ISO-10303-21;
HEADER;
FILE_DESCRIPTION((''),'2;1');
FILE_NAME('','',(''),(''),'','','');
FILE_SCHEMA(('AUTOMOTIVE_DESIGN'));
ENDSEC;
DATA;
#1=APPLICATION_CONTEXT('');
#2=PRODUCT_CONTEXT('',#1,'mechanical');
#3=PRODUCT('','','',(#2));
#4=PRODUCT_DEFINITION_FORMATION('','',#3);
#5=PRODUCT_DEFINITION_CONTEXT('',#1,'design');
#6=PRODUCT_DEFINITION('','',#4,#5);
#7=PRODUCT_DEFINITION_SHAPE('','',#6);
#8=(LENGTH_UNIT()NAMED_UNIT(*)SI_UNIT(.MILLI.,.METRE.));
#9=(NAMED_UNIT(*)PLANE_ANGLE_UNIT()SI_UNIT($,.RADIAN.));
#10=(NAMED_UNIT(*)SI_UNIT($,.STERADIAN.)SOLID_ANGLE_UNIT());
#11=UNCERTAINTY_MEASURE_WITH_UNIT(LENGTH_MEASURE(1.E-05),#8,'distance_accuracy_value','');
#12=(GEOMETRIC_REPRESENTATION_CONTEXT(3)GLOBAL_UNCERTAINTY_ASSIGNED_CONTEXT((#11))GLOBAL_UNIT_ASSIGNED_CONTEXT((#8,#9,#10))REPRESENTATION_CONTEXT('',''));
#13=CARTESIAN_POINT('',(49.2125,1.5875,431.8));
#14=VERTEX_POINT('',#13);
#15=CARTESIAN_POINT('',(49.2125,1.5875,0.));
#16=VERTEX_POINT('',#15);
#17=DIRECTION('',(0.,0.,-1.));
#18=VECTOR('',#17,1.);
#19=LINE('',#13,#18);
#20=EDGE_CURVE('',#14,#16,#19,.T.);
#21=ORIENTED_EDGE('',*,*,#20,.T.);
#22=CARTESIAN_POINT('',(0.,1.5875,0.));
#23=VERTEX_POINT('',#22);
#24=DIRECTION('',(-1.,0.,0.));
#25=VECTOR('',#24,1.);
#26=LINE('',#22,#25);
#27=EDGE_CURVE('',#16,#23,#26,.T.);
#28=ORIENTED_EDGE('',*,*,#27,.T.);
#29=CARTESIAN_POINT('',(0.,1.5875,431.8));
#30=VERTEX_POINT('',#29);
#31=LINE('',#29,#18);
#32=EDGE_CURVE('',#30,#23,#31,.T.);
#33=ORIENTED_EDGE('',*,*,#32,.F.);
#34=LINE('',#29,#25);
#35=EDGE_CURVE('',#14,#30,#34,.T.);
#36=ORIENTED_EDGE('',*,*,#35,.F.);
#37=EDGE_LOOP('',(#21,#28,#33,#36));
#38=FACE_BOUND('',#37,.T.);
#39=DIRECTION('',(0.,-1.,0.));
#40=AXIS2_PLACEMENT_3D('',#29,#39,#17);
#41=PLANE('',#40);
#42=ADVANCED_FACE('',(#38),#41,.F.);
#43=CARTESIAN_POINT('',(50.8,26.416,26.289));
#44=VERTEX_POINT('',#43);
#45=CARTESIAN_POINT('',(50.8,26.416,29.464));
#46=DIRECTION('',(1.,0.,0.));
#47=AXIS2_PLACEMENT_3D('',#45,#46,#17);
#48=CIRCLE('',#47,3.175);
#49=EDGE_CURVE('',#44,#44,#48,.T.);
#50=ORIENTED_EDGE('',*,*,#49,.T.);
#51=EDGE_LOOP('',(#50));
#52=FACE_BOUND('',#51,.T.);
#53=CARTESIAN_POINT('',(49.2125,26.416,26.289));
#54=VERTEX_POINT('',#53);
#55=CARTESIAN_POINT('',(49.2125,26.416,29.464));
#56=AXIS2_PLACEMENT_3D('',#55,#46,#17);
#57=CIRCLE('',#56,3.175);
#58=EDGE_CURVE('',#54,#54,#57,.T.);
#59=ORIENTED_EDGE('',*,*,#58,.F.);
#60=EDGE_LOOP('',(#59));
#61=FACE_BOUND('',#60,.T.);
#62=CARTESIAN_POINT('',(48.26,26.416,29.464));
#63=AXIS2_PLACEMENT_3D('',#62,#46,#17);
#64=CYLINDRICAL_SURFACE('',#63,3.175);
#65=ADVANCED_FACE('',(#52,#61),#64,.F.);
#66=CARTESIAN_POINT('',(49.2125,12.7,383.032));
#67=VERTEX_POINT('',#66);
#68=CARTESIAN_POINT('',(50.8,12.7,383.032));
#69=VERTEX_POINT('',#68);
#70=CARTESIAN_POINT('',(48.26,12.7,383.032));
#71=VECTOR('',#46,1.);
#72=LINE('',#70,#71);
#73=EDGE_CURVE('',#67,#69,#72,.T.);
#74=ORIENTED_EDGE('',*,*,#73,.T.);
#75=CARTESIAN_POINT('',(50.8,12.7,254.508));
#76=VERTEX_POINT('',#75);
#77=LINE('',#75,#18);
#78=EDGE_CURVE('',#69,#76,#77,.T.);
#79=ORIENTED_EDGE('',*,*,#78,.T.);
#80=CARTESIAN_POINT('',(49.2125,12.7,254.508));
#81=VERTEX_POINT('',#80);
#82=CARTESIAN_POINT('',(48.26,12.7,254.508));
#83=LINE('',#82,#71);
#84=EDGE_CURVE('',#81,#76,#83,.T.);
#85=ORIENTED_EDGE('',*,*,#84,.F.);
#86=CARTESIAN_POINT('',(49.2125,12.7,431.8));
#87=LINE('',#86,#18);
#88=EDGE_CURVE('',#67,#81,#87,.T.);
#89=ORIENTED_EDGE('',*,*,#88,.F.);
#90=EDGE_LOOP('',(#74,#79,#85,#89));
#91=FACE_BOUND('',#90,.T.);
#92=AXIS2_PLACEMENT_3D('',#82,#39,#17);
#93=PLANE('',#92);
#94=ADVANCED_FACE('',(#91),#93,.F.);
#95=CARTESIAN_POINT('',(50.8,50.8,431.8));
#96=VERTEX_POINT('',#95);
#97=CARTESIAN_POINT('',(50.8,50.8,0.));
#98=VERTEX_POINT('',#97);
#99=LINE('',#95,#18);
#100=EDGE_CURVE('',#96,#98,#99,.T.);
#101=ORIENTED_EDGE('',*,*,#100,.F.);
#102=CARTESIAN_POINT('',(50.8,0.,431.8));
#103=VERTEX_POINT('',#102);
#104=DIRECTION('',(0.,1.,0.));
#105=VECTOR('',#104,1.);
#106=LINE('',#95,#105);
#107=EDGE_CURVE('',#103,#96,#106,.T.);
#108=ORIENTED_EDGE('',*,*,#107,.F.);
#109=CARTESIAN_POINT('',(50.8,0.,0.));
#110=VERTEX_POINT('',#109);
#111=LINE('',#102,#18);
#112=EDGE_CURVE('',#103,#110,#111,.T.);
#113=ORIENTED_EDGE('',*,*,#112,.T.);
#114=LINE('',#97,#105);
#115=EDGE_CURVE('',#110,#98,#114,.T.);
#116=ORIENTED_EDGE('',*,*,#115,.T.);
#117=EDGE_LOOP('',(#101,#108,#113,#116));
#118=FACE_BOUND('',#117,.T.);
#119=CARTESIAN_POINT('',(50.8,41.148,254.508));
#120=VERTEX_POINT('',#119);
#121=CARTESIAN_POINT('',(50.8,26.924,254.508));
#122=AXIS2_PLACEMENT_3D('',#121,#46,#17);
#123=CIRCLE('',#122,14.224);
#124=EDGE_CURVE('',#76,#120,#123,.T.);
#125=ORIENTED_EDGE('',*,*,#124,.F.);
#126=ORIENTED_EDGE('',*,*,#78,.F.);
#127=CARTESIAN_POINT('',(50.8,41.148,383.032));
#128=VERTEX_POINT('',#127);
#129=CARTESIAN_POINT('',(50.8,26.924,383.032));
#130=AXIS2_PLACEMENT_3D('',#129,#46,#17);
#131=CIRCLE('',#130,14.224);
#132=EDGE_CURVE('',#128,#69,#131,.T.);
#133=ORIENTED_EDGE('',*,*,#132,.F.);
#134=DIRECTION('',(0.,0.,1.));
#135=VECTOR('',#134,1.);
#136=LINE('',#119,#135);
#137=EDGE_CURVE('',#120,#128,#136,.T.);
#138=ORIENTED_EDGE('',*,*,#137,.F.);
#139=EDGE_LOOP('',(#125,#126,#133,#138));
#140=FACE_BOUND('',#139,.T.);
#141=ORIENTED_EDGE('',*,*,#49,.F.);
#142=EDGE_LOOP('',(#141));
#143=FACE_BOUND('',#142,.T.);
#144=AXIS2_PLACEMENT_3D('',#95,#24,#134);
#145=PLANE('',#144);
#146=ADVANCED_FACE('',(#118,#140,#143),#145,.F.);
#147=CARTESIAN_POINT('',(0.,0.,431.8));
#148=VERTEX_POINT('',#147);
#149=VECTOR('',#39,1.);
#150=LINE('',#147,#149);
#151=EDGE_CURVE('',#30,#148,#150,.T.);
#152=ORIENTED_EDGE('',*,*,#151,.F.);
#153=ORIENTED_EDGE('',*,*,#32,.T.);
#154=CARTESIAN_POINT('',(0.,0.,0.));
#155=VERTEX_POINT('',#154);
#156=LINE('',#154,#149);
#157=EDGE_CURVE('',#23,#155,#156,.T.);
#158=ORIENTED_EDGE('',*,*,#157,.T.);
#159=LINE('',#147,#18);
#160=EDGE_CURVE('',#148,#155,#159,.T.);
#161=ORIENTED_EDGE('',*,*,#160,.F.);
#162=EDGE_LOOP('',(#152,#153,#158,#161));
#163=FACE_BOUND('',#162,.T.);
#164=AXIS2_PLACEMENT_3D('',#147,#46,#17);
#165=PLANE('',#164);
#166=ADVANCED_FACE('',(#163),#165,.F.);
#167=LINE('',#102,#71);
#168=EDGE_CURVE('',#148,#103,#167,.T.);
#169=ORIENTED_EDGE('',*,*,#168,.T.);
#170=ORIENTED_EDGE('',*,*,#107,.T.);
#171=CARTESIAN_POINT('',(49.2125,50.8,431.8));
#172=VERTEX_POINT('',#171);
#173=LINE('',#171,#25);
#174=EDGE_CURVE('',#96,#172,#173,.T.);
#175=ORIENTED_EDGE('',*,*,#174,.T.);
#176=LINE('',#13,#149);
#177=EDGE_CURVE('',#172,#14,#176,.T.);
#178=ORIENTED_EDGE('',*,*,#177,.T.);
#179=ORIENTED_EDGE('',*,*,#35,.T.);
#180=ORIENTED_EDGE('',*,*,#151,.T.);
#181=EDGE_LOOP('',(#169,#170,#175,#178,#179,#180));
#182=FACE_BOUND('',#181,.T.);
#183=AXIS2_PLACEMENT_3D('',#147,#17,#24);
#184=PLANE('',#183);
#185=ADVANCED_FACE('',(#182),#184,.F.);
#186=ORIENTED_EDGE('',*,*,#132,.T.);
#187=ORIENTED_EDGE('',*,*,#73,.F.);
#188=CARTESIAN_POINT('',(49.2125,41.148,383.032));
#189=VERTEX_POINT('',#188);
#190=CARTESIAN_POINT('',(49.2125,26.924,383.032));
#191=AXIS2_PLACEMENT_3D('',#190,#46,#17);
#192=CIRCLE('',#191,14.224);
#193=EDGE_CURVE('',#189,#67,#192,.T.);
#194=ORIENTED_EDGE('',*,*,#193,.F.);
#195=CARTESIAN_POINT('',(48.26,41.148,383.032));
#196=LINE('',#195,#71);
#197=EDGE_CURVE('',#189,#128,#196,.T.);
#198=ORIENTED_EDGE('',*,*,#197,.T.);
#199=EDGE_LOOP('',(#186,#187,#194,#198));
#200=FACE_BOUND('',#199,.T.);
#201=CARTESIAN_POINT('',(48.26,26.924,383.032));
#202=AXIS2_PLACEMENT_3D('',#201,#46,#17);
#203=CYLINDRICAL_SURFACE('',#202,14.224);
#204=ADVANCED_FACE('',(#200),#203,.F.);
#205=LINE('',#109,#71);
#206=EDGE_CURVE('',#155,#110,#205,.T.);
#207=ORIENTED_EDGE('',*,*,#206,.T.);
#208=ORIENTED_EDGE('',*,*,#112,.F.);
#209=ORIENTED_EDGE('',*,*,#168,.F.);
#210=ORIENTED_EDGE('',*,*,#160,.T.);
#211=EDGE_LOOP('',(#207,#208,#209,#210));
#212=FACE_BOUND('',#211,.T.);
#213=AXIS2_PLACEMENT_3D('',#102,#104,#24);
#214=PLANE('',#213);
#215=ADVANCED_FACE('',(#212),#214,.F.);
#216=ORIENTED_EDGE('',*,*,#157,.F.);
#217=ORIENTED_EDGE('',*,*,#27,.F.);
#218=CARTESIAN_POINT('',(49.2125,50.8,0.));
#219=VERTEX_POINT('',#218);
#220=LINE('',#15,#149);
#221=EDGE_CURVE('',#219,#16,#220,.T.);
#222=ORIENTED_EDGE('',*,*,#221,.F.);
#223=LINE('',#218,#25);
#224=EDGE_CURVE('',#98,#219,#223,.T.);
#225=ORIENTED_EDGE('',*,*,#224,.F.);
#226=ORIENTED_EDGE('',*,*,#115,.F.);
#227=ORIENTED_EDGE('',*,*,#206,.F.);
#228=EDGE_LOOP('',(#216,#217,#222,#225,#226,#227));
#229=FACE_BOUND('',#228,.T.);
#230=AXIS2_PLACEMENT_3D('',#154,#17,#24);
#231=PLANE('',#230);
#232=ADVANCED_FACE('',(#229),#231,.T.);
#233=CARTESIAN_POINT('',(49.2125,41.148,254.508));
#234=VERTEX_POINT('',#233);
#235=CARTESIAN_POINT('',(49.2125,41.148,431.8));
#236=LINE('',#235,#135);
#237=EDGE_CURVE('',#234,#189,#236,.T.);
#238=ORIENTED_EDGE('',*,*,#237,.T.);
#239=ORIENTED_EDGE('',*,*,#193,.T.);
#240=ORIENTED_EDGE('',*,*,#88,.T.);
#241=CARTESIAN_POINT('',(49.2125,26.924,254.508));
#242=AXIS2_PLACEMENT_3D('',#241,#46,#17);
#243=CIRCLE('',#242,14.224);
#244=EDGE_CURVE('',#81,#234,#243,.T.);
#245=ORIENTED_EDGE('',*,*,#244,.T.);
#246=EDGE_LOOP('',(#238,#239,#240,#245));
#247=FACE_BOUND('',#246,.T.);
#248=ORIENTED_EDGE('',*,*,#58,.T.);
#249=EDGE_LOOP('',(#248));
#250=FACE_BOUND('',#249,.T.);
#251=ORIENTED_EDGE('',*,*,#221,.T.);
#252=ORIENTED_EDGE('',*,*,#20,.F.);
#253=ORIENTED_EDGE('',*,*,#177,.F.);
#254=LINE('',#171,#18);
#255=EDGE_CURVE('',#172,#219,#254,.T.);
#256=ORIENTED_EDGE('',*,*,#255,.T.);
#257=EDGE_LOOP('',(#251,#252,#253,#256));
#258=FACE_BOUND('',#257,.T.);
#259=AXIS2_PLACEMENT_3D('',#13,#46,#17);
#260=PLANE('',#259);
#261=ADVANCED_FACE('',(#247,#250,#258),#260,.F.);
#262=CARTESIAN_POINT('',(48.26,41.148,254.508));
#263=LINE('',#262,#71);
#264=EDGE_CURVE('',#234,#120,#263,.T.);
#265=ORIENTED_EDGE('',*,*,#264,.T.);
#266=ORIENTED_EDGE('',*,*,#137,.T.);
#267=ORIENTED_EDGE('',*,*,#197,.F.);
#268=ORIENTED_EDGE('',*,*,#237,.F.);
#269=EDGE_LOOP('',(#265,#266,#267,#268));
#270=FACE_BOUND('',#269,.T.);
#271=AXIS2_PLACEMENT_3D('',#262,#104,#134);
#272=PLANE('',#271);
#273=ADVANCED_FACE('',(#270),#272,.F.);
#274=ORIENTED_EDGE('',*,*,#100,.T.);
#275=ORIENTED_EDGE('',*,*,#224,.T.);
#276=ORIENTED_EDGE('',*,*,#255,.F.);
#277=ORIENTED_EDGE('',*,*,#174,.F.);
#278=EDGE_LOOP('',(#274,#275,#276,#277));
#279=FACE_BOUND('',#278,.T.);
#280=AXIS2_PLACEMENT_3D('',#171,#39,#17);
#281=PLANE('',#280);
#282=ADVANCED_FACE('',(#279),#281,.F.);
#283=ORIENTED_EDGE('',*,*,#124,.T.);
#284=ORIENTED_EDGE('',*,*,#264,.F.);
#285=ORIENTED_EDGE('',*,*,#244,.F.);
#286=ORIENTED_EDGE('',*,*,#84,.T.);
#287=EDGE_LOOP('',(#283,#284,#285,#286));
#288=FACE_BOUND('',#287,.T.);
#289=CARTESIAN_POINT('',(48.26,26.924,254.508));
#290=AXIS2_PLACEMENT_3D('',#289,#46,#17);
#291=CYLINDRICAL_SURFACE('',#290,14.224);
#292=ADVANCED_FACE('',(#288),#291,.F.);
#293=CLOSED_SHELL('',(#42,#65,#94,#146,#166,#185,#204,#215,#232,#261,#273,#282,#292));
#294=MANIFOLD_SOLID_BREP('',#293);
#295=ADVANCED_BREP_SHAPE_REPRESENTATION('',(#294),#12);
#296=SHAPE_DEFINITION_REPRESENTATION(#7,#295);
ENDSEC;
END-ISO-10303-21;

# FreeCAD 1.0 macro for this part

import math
import FreeCAD as App
import Part
import Sketcher
from FreeCAD import Vector
Q = App.Units.Quantity

doc = App.newDocument("Part")
body = doc.addObject("PartDesign::Body", "Body")

# Sketch on XY plane
sketch1 = body.newObject("Sketcher::SketchObject", "Sketch")
sketch1.AttachmentSupport = (doc.getObject("XY_Plane"), [""])
sketch1.MapMode = "FlatFace"
sketch1.addGeometry([
    Part.LineSegment(Vector(0, 1.6, 0), Vector(0, 0, 0)),  # 0
    Part.LineSegment(Vector(0, 0, 0), Vector(50.8, 0, 0)),  # 1
    Part.LineSegment(Vector(50.8, 0, 0), Vector(50.8, 50.8, 0)),  # 2
    Part.LineSegment(Vector(50.8, 50.8, 0), Vector(49.2, 50.8, 0)),  # 3
    Part.LineSegment(Vector(49.2, 50.8, 0), Vector(49.2, 1.6, 0)),  # 4
    Part.LineSegment(Vector(49.2, 1.6, 0), Vector(0, 1.6, 0)),  # 5
], False)
sketch1.addConstraint([
    Sketcher.Constraint("Coincident", 0, 2, 1, 1),
    Sketcher.Constraint("Coincident", 1, 2, 2, 1),
    Sketcher.Constraint("Coincident", 2, 2, 3, 1),
    Sketcher.Constraint("Coincident", 3, 2, 4, 1),
    Sketcher.Constraint("Coincident", 4, 2, 5, 1),
    Sketcher.Constraint("Coincident", 5, 2, 0, 1),
    Sketcher.Constraint("Vertical", 0),
    Sketcher.Constraint("Horizontal", 1),
    Sketcher.Constraint("Vertical", 2),
    Sketcher.Constraint("Horizontal", 3),
    Sketcher.Constraint("Vertical", 4),
    Sketcher.Constraint("Horizontal", 5),
    Sketcher.Constraint("Coincident", 0, 2, -1, 1),
    Sketcher.Constraint("Equal", 3, 0),
    Sketcher.Constraint("Equal", 1, 2),
    Sketcher.Constraint("DistanceX", 1, 1, 1, 2, Q("2 in")),
    Sketcher.Constraint("DistanceX", 3, 2, 3, 1, Q("0.0625 in")),
])
pad1 = body.newObject("PartDesign::Pad", "Pad")
pad1.Profile = sketch1
pad1.Length = Q("17 in")

# Sketch on YZ plane
sketch2 = body.newObject("Sketcher::SketchObject", "Sketch001")
sketch2.AttachmentSupport = (doc.getObject("YZ_Plane"), [""])
sketch2.MapMode = "FlatFace"
sketch2.AttachmentOffset = App.Placement(Vector(0, 0, 2 * 25.4), App.Rotation())
sketch2.addGeometry([
    Part.Circle(Vector(26.4, 29.5, 0), Vector(0, 0, 1), 3.2),  # 0
    Part.LineSegment(Vector(12.7, 383, 0), Vector(12.7, 254.5, 0)),  # 1
    Part.ArcOfCircle(Part.Circle(Vector(26.9, 254.5, 0), Vector(0, 0, 1), 14.2), math.radians(180), math.radians(360)),  # 2
    Part.LineSegment(Vector(41.1, 254.5, 0), Vector(41.1, 383, 0)),  # 3
    Part.ArcOfCircle(Part.Circle(Vector(26.9, 383, 0), Vector(0, 0, 1), 14.2), math.radians(0), math.radians(180)),  # 4
], False)
sketch2.addConstraint([
    Sketcher.Constraint("Tangent", 1, 2, 2, 1),
    Sketcher.Constraint("Tangent", 2, 2, 3, 1),
    Sketcher.Constraint("Tangent", 3, 2, 4, 1),
    Sketcher.Constraint("Tangent", 4, 2, 1, 1),
    Sketcher.Constraint("Vertical", 1),
    Sketcher.Constraint("Vertical", 3),
    Sketcher.Constraint("Diameter", 0, Q("0.25 in")),
    Sketcher.Constraint("Radius", 2, Q("0.56 in")),
    Sketcher.Constraint("DistanceY", 1, 2, 1, 1, Q("5.06 in")),
    Sketcher.Constraint("DistanceX", -1, 1, 1, 2, Q("0.5 in")),
    Sketcher.Constraint("DistanceX", -1, 1, 0, 3, Q("1.04 in")),
    Sketcher.Constraint("DistanceY", -1, 1, 0, 3, Q("1.16 in")),
    Sketcher.Constraint("DistanceY", -1, 1, 2, 3, Q("10.02 in")),
])
pocket1 = body.newObject("PartDesign::Pocket", "Pocket")
pocket1.Profile = sketch2
pocket1.Length = Q("0.1 in")

doc.recompute()
